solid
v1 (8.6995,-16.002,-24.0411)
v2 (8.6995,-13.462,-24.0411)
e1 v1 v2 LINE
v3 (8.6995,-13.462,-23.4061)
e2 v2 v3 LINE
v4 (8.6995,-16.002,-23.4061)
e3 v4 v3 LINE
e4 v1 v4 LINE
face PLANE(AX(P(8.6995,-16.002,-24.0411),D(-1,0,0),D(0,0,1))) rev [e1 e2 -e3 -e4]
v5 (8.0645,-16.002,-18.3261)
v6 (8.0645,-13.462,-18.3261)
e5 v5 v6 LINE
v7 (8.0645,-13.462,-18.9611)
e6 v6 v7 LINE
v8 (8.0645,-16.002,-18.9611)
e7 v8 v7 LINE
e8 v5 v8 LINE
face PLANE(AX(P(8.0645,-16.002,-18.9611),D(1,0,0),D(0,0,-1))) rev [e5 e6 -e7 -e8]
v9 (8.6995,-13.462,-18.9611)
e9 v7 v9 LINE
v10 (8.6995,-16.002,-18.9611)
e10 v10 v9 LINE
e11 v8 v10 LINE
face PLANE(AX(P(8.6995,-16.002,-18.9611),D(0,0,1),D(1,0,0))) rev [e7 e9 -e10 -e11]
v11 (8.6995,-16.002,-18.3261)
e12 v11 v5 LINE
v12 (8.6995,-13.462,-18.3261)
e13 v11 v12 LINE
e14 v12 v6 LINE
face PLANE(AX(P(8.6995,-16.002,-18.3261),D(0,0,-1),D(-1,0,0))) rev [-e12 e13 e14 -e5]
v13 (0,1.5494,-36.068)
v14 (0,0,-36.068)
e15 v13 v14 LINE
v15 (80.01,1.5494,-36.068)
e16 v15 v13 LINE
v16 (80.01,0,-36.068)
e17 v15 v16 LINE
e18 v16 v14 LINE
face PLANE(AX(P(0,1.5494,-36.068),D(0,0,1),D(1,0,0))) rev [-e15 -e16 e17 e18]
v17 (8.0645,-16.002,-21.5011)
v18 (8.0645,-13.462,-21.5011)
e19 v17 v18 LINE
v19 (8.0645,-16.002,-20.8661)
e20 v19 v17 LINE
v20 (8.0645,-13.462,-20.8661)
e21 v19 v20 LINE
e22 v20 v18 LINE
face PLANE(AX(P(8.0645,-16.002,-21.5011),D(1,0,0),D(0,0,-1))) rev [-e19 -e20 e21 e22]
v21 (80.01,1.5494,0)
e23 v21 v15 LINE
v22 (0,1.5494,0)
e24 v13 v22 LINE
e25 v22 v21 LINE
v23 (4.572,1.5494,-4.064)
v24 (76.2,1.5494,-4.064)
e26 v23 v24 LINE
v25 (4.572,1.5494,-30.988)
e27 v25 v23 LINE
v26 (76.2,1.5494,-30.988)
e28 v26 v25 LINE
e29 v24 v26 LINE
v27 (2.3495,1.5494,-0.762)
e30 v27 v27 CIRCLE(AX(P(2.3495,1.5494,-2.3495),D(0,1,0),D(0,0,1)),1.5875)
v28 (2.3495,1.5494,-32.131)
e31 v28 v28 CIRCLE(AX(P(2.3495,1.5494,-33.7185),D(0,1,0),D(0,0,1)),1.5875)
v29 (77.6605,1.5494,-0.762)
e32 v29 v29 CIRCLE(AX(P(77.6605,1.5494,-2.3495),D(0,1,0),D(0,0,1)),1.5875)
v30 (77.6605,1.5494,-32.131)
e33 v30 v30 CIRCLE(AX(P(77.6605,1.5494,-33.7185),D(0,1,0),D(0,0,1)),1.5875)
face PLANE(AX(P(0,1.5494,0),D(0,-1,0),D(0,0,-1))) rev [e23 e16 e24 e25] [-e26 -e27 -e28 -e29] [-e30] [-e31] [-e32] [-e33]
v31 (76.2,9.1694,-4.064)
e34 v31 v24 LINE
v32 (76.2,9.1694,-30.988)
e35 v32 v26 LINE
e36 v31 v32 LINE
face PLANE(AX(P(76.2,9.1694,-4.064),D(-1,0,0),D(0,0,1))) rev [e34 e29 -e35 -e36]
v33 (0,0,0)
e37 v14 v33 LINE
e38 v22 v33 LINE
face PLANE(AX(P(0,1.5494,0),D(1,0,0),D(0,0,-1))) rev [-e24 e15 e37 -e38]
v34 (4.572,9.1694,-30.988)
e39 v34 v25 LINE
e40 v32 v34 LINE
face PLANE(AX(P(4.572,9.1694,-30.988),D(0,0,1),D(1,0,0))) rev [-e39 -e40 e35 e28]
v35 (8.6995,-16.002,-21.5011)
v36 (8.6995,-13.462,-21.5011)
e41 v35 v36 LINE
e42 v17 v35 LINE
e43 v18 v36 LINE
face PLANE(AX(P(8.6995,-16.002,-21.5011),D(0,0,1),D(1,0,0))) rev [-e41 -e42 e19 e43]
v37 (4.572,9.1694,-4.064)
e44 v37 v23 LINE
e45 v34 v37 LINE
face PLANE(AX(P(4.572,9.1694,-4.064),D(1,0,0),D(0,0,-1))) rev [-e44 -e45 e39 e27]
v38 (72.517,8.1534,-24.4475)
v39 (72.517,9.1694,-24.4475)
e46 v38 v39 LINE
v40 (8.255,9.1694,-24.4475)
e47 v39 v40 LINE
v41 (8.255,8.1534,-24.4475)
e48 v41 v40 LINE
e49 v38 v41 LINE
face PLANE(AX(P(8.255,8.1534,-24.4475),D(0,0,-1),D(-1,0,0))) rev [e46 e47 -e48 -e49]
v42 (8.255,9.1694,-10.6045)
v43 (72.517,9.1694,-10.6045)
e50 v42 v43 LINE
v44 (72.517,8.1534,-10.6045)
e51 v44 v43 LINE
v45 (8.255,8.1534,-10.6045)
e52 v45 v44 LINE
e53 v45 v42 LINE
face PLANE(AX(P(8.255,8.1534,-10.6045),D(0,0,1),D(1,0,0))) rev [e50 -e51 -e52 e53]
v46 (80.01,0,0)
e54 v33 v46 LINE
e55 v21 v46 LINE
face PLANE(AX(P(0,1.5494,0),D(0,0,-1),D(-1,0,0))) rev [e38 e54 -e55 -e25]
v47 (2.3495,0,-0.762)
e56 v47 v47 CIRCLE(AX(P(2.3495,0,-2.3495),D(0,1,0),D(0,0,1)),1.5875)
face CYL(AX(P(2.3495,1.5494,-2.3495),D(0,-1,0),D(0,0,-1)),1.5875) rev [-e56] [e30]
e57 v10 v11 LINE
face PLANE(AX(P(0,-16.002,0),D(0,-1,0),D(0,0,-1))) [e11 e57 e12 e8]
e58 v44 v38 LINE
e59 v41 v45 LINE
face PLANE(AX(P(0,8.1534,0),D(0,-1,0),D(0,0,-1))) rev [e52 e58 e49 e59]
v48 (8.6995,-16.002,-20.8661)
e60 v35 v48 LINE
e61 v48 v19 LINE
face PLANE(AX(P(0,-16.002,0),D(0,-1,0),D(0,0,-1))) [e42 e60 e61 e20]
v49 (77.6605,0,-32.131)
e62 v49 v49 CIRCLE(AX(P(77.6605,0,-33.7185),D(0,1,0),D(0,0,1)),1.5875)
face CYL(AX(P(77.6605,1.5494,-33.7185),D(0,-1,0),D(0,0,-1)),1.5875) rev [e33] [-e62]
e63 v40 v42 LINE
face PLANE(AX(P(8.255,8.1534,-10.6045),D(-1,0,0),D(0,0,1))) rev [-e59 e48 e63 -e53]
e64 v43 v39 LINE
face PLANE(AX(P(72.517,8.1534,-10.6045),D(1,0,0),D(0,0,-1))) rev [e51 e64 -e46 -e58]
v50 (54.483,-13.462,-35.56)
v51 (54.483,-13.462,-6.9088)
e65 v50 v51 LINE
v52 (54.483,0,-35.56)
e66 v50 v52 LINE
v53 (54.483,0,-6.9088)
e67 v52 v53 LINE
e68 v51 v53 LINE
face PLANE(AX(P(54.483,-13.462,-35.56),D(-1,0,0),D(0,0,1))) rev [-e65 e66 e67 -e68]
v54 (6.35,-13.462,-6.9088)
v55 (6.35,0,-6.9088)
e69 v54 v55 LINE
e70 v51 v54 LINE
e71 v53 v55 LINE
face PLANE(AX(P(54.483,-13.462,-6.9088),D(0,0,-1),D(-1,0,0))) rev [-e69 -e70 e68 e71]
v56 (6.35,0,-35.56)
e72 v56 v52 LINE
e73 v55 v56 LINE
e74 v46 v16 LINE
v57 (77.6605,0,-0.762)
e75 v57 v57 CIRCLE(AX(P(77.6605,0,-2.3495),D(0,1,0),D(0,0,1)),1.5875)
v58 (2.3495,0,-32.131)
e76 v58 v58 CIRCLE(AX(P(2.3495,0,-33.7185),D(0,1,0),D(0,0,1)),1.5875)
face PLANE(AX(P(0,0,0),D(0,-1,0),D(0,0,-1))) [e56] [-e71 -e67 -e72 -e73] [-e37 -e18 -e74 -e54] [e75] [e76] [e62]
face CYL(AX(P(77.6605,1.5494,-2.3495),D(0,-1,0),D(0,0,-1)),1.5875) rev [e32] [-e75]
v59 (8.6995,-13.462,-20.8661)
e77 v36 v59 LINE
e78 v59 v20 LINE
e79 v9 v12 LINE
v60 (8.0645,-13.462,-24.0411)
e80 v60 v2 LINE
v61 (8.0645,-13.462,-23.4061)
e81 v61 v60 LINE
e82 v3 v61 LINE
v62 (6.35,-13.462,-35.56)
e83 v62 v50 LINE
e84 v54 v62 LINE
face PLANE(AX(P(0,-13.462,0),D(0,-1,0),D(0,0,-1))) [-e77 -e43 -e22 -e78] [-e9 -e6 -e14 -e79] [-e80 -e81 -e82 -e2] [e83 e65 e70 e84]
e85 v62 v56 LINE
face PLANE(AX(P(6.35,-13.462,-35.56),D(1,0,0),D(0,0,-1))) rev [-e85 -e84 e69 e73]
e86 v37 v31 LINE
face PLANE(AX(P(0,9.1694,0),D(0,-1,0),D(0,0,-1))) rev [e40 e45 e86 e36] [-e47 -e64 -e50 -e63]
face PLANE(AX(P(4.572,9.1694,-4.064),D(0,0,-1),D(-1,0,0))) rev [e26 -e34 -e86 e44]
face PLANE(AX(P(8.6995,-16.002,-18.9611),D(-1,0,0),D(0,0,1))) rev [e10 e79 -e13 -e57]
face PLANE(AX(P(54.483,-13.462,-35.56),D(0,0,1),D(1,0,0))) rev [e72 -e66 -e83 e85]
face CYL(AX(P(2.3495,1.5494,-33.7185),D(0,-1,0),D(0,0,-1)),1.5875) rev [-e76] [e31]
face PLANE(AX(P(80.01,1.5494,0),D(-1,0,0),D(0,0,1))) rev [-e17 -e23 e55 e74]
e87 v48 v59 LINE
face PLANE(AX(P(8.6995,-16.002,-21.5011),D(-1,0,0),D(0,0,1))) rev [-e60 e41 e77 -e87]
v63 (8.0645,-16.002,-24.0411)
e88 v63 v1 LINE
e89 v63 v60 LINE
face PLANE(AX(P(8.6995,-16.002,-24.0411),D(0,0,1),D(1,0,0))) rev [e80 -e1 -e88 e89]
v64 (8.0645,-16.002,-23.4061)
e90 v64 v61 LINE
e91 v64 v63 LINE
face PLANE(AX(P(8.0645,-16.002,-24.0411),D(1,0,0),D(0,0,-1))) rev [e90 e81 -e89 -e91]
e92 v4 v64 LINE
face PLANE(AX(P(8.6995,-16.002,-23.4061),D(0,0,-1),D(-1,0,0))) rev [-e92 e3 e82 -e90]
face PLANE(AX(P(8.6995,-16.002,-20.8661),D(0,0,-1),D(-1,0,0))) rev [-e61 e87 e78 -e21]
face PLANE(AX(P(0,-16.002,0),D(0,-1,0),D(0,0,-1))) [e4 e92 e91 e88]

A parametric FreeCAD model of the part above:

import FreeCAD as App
import Part
import Sketcher
from FreeCAD import Vector
Q = App.Units.Quantity

doc = App.newDocument("Part")
body = doc.addObject("PartDesign::Body", "Body")

# Sketch on XZ plane
sketch1 = doc.addObject("Sketcher::SketchObject", "Sketch")
body.addObject(sketch1)
sketch1.AttachmentSupport = (doc.XZ_Plane, [""])
sketch1.MapMode = "FlatFace"
sketch1.addGeometry(Part.LineSegment(Vector(0, -36.1, 0), Vector(0, 0, 0)), False)
sketch1.addGeometry(Part.LineSegment(Vector(0, 0, 0), Vector(80, 0, 0)), False)
sketch1.addGeometry(Part.LineSegment(Vector(80, 0, 0), Vector(80, -36.1, 0)), False)
sketch1.addGeometry(Part.LineSegment(Vector(80, -36.1, 0), Vector(0, -36.1, 0)), False)
sketch1.addGeometry(Part.Circle(Vector(2.3, -2.3, 0), Vector(0, 0, 1), 1.6), False)
sketch1.addGeometry(Part.Circle(Vector(77.7, -2.3, 0), Vector(0, 0, 1), 1.6), False)
sketch1.addGeometry(Part.Circle(Vector(2.3, -33.7, 0), Vector(0, 0, 1), 1.6), False)
sketch1.addGeometry(Part.Circle(Vector(77.7, -33.7, 0), Vector(0, 0, 1), 1.6), False)
sketch1.addConstraint(Sketcher.Constraint("Coincident", 0, 2, 1, 1))
sketch1.addConstraint(Sketcher.Constraint("Coincident", 1, 2, 2, 1))
sketch1.addConstraint(Sketcher.Constraint("Coincident", 2, 2, 3, 1))
sketch1.addConstraint(Sketcher.Constraint("Coincident", 3, 2, 0, 1))
sketch1.addConstraint(Sketcher.Constraint("Vertical", 0))
sketch1.addConstraint(Sketcher.Constraint("Horizontal", 1))
sketch1.addConstraint(Sketcher.Constraint("Vertical", 2))
sketch1.addConstraint(Sketcher.Constraint("Horizontal", 3))
sketch1.addConstraint(Sketcher.Constraint("Coincident", 0, 2, -1, 1))
sketch1.addConstraint(Sketcher.Constraint("Equal", 4, 5))
sketch1.addConstraint(Sketcher.Constraint("Equal", 5, 6))
sketch1.addConstraint(Sketcher.Constraint("Equal", 6, 7))
sketch1.addConstraint(Sketcher.Constraint("Horizontal", 4, 3, 5, 3))
sketch1.addConstraint(Sketcher.Constraint("Horizontal", 6, 3, 7, 3))
sketch1.addConstraint(Sketcher.Constraint("Vertical", 4, 3, 6, 3))
sketch1.addConstraint(Sketcher.Constraint("Vertical", 5, 3, 7, 3))
sketch1.addConstraint(Sketcher.Constraint("Diameter", 4, Q("0.125 in")))
sketch1.addConstraint(Sketcher.Constraint("DistanceX", 1, 1, 1, 2, Q("3.15 in")))
sketch1.addConstraint(Sketcher.Constraint("DistanceY", 0, 1, 0, 2, Q("1.42 in")))
sketch1.addConstraint(Sketcher.Constraint("DistanceX", 4, 3, 5, 3, Q("2.965 in")))
sketch1.addConstraint(Sketcher.Constraint("DistanceY", 6, 3, 4, 3, Q("1.235 in")))
sketch1.addConstraint(Sketcher.Constraint("DistanceX", -1, 1, 4, 3, Q("0.0925 in")))
sketch1.addConstraint(Sketcher.Constraint("DistanceY", 4, 3, -1, 1, Q("0.0925 in")))
pad1 = doc.addObject("PartDesign::Pad", "Pad")
body.addObject(pad1)
pad1.Profile = sketch1
pad1.Length = Q("0.061 in")
pad1.Reversed = True

# Sketch on XZ plane
sketch2 = doc.addObject("Sketcher::SketchObject", "Sketch001")
body.addObject(sketch2)
sketch2.AttachmentSupport = (doc.XZ_Plane, [""])
sketch2.MapMode = "FlatFace"
sketch2.AttachmentOffset = App.Placement(Vector(0, 0, -0.061 * 25.4), App.Rotation())
sketch2.addGeometry(Part.LineSegment(Vector(5, -31, 0), Vector(5, -4, 0)), False)
sketch2.addGeometry(Part.LineSegment(Vector(5, -4, 0), Vector(76, -4, 0)), False)
sketch2.addGeometry(Part.LineSegment(Vector(76, -4, 0), Vector(76, -31, 0)), False)
sketch2.addGeometry(Part.LineSegment(Vector(76, -31, 0), Vector(5, -31, 0)), False)
sketch2.addConstraint(Sketcher.Constraint("Coincident", 0, 2, 1, 1))
sketch2.addConstraint(Sketcher.Constraint("Coincident", 1, 2, 2, 1))
sketch2.addConstraint(Sketcher.Constraint("Coincident", 2, 2, 3, 1))
sketch2.addConstraint(Sketcher.Constraint("Coincident", 3, 2, 0, 1))
sketch2.addConstraint(Sketcher.Constraint("Vertical", 0))
sketch2.addConstraint(Sketcher.Constraint("Horizontal", 1))
sketch2.addConstraint(Sketcher.Constraint("Vertical", 2))
sketch2.addConstraint(Sketcher.Constraint("Horizontal", 3))
sketch2.addConstraint(Sketcher.Constraint("DistanceX", -1, 1, 1, 2, Q("3 in")))
sketch2.addConstraint(Sketcher.Constraint("DistanceX", 1, 1, 1, 2, Q("2.82 in")))
sketch2.addConstraint(Sketcher.Constraint("DistanceY", 0, 1, 0, 2, Q("1.06 in")))
sketch2.addConstraint(Sketcher.Constraint("DistanceY", 0, 2, -1, 1, Q("0.16 in")))
pad2 = doc.addObject("PartDesign::Pad", "Pad001")
body.addObject(pad2)
pad2.Profile = sketch2
pad2.Length = Q("0.3 in")
pad2.Reversed = True

# Sketch on XZ plane
sketch3 = doc.addObject("Sketcher::SketchObject", "Sketch002")
body.addObject(sketch3)
sketch3.AttachmentSupport = (doc.XZ_Plane, [""])
sketch3.MapMode = "FlatFace"
sketch3.AttachmentOffset = App.Placement(Vector(0, 0, -0.361 * 25.4), App.Rotation())
sketch3.addGeometry(Part.LineSegment(Vector(8, -24, 0), Vector(8, -11, 0)), False)
sketch3.addGeometry(Part.LineSegment(Vector(8, -11, 0), Vector(73, -11, 0)), False)
sketch3.addGeometry(Part.LineSegment(Vector(73, -11, 0), Vector(73, -24, 0)), False)
sketch3.addGeometry(Part.LineSegment(Vector(73, -24, 0), Vector(8, -24, 0)), False)
sketch3.addConstraint(Sketcher.Constraint("Coincident", 0, 2, 1, 1))
sketch3.addConstraint(Sketcher.Constraint("Coincident", 1, 2, 2, 1))
sketch3.addConstraint(Sketcher.Constraint("Coincident", 2, 2, 3, 1))
sketch3.addConstraint(Sketcher.Constraint("Coincident", 3, 2, 0, 1))
sketch3.addConstraint(Sketcher.Constraint("Vertical", 0))
sketch3.addConstraint(Sketcher.Constraint("Horizontal", 1))
sketch3.addConstraint(Sketcher.Constraint("Vertical", 2))
sketch3.addConstraint(Sketcher.Constraint("Horizontal", 3))
sketch3.addConstraint(Sketcher.Constraint("DistanceX", 1, 1, 1, 2, Q("2.53 in")))
sketch3.addConstraint(Sketcher.Constraint("DistanceY", 0, 1, 0, 2, Q("0.545 in")))
sketch3.addConstraint(Sketcher.Constraint("DistanceX", -1, 1, 0, 2, Q("0.325 in")))
sketch3.addConstraint(Sketcher.Constraint("DistanceY", 0, 2, -1, 1, Q("0.4175 in")))
pocket1 = doc.addObject("PartDesign::Pocket", "Pocket")
body.addObject(pocket1)
pocket1.Profile = sketch3
pocket1.Length = Q("0.04 in")
pocket1.Reversed = True

# Sketch on XZ plane
sketch4 = doc.addObject("Sketcher::SketchObject", "Sketch003")
body.addObject(sketch4)
sketch4.AttachmentSupport = (doc.XZ_Plane, [""])
sketch4.MapMode = "FlatFace"
sketch4.addGeometry(Part.LineSegment(Vector(6, -7, 0), Vector(6, -36, 0)), False)
sketch4.addGeometry(Part.LineSegment(Vector(6, -36, 0), Vector(54, -36, 0)), False)
sketch4.addGeometry(Part.LineSegment(Vector(54, -36, 0), Vector(54, -7, 0)), False)
sketch4.addGeometry(Part.LineSegment(Vector(54, -7, 0), Vector(6, -7, 0)), False)
sketch4.addConstraint(Sketcher.Constraint("Coincident", 0, 2, 1, 1))
sketch4.addConstraint(Sketcher.Constraint("Coincident", 1, 2, 2, 1))
sketch4.addConstraint(Sketcher.Constraint("Coincident", 2, 2, 3, 1))
sketch4.addConstraint(Sketcher.Constraint("Coincident", 3, 2, 0, 1))
sketch4.addConstraint(Sketcher.Constraint("Vertical", 0))
sketch4.addConstraint(Sketcher.Constraint("Horizontal", 1))
sketch4.addConstraint(Sketcher.Constraint("Vertical", 2))
sketch4.addConstraint(Sketcher.Constraint("Horizontal", 3))
sketch4.addConstraint(Sketcher.Constraint("DistanceY", 0, 2, -1, 1, Q("1.4 in")))
sketch4.addConstraint(Sketcher.Constraint("DistanceX", 1, 1, 1, 2, Q("1.895 in")))
sketch4.addConstraint(Sketcher.Constraint("DistanceY", 0, 2, 0, 1, Q("1.128 in")))
sketch4.addConstraint(Sketcher.Constraint("DistanceX", -1, 1, 0, 2, Q("0.25 in")))
pad3 = doc.addObject("PartDesign::Pad", "Pad002")
body.addObject(pad3)
pad3.Profile = sketch4
pad3.Length = Q("0.53 in")

# Sketch on XZ plane
sketch5 = doc.addObject("Sketcher::SketchObject", "Sketch004")
body.addObject(sketch5)
sketch5.AttachmentSupport = (doc.XZ_Plane, [""])
sketch5.MapMode = "FlatFace"
sketch5.AttachmentOffset = App.Placement(Vector(0, 0, 0.53 * 25.4), App.Rotation())
sketch5.addGeometry(Part.LineSegment(Vector(8.1, -18.3, 0), Vector(8.1, -19, 0)), False)
sketch5.addGeometry(Part.LineSegment(Vector(8.1, -19, 0), Vector(8.7, -19, 0)), False)
sketch5.addGeometry(Part.LineSegment(Vector(8.7, -19, 0), Vector(8.7, -18.3, 0)), False)
sketch5.addGeometry(Part.LineSegment(Vector(8.7, -18.3, 0), Vector(8.1, -18.3, 0)), False)
sketch5.addGeometry(Part.LineSegment(Vector(8.1, -20.9, 0), Vector(8.1, -21.5, 0)), False)
sketch5.addGeometry(Part.LineSegment(Vector(8.1, -21.5, 0), Vector(8.7, -21.5, 0)), False)
sketch5.addGeometry(Part.LineSegment(Vector(8.7, -21.5, 0), Vector(8.7, -20.9, 0)), False)
sketch5.addGeometry(Part.LineSegment(Vector(8.7, -20.9, 0), Vector(8.1, -20.9, 0)), False)
sketch5.addGeometry(Part.LineSegment(Vector(8.1, -23.4, 0), Vector(8.1, -24, 0)), False)
sketch5.addGeometry(Part.LineSegment(Vector(8.1, -24, 0), Vector(8.7, -24, 0)), False)
sketch5.addGeometry(Part.LineSegment(Vector(8.7, -24, 0), Vector(8.7, -23.4, 0)), False)
sketch5.addGeometry(Part.LineSegment(Vector(8.7, -23.4, 0), Vector(8.1, -23.4, 0)), False)
sketch5.addConstraint(Sketcher.Constraint("Coincident", 0, 2, 1, 1))
sketch5.addConstraint(Sketcher.Constraint("Coincident", 1, 2, 2, 1))
sketch5.addConstraint(Sketcher.Constraint("Coincident", 2, 2, 3, 1))
sketch5.addConstraint(Sketcher.Constraint("Coincident", 3, 2, 0, 1))
sketch5.addConstraint(Sketcher.Constraint("Coincident", 4, 2, 5, 1))
sketch5.addConstraint(Sketcher.Constraint("Coincident", 5, 2, 6, 1))
sketch5.addConstraint(Sketcher.Constraint("Coincident", 6, 2, 7, 1))
sketch5.addConstraint(Sketcher.Constraint("Coincident", 7, 2, 4, 1))
sketch5.addConstraint(Sketcher.Constraint("Coincident", 8, 2, 9, 1))
sketch5.addConstraint(Sketcher.Constraint("Coincident", 9, 2, 10, 1))
sketch5.addConstraint(Sketcher.Constraint("Coincident", 10, 2, 11, 1))
sketch5.addConstraint(Sketcher.Constraint("Coincident", 11, 2, 8, 1))
sketch5.addConstraint(Sketcher.Constraint("Vertical", 0))
sketch5.addConstraint(Sketcher.Constraint("Horizontal", 1))
sketch5.addConstraint(Sketcher.Constraint("Vertical", 2))
sketch5.addConstraint(Sketcher.Constraint("Horizontal", 3))
sketch5.addConstraint(Sketcher.Constraint("Vertical", 4))
sketch5.addConstraint(Sketcher.Constraint("Horizontal", 5))
sketch5.addConstraint(Sketcher.Constraint("Vertical", 6))
sketch5.addConstraint(Sketcher.Constraint("Horizontal", 7))
sketch5.addConstraint(Sketcher.Constraint("Vertical", 8))
sketch5.addConstraint(Sketcher.Constraint("Horizontal", 9))
sketch5.addConstraint(Sketcher.Constraint("Vertical", 10))
sketch5.addConstraint(Sketcher.Constraint("Horizontal", 11))
sketch5.addConstraint(Sketcher.Constraint("Vertical", 3, 2, 4, 2))
sketch5.addConstraint(Sketcher.Constraint("Vertical", 2, 2, 5, 2))
sketch5.addConstraint(Sketcher.Constraint("Vertical", 7, 2, 8, 2))
sketch5.addConstraint(Sketcher.Constraint("Vertical", 6, 2, 9, 2))
sketch5.addConstraint(Sketcher.Constraint("Equal", 11, 0))
sketch5.addConstraint(Sketcher.Constraint("Equal", 2, 4))
sketch5.addConstraint(Sketcher.Constraint("Equal", 6, 8))
sketch5.addConstraint(Sketcher.Constraint("DistanceY", 4, 2, 0, 2, Q("0.1 in")))
sketch5.addConstraint(Sketcher.Constraint("DistanceY", 8, 2, 4, 2, Q("0.1 in")))
sketch5.addConstraint(Sketcher.Constraint("DistanceX", 1, 1, 1, 2, Q("0.025 in")))
sketch5.addConstraint(Sketcher.Constraint("DistanceX", -1, 1, 0, 2, Q("0.3175 in")))
sketch5.addConstraint(Sketcher.Constraint("DistanceY", 0, 2, -1, 1, Q("0.7465 in")))
pad4 = doc.addObject("PartDesign::Pad", "Pad003")
body.addObject(pad4)
pad4.Profile = sketch5
pad4.Length = Q("0.1 in")

doc.recompute()
